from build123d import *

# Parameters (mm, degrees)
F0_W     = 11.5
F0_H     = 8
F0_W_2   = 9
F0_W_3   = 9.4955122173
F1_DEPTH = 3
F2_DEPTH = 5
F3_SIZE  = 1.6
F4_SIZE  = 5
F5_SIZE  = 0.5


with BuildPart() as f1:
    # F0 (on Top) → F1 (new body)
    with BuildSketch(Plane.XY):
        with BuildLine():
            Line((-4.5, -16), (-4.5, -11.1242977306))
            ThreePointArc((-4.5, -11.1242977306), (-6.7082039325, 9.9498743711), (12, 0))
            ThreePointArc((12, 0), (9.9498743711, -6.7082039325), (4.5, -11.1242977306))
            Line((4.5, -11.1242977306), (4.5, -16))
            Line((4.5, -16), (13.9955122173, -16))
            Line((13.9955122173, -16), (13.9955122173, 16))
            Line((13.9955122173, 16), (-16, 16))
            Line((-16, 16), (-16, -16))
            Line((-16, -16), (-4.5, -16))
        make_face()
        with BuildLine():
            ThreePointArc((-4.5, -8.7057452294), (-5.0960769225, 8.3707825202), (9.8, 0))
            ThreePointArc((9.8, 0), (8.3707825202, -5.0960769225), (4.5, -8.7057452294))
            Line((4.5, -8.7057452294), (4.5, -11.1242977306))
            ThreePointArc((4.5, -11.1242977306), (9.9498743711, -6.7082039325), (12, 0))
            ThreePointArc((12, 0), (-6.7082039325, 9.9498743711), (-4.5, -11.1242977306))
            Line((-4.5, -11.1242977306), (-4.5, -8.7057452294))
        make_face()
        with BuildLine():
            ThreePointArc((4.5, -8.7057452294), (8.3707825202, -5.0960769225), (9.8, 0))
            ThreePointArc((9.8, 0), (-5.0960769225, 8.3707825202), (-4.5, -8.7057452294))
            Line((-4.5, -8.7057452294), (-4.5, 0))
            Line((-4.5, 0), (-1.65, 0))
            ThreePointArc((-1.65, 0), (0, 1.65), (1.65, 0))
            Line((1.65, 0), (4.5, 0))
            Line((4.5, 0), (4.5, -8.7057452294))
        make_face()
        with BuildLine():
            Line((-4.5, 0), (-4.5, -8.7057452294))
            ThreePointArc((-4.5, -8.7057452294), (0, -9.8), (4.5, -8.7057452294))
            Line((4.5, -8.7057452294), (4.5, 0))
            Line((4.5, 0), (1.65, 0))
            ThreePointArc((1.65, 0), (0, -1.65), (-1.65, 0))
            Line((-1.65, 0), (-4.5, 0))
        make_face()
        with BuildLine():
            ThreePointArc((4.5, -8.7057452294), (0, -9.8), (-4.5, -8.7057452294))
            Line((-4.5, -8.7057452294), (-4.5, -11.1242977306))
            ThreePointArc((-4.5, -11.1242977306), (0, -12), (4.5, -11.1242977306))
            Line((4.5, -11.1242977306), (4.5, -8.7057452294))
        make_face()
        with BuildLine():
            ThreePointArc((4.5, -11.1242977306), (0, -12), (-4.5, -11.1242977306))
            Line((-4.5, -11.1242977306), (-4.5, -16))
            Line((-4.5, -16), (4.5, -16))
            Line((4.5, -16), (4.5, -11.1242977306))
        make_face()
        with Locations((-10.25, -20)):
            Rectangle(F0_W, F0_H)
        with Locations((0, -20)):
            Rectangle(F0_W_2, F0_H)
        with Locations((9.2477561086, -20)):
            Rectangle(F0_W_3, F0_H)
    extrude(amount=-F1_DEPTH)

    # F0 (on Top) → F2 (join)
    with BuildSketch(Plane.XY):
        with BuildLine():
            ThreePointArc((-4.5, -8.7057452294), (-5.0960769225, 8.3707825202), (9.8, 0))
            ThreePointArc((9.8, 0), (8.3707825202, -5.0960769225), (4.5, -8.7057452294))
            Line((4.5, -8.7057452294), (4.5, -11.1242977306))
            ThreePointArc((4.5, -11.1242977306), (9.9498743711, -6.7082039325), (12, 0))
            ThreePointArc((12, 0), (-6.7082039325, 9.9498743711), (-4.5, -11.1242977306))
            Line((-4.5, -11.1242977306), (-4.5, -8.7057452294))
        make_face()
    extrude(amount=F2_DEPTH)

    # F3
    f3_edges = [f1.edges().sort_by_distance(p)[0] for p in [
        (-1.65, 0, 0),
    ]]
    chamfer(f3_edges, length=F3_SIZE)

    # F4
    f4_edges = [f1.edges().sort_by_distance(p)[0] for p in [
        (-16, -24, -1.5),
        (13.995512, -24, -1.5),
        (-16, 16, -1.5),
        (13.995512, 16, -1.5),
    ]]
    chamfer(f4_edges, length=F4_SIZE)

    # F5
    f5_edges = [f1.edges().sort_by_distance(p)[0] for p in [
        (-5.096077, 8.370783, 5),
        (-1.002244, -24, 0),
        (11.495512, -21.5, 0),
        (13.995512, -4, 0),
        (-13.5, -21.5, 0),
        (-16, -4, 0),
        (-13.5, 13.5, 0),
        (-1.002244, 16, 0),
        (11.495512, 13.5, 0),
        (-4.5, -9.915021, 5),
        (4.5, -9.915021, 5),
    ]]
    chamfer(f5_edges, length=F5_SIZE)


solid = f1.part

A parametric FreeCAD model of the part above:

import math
import FreeCAD as App
import Part
import Sketcher
Q = App.Units.Quantity


def edges_at(feature, points):
    """Names of the edges that pass closest to the given points."""
    edges = feature.Shape.Edges
    near = lambda p: min(range(len(edges)), key=lambda i: edges[i].distToShape(Part.Vertex(*p))[0])
    return sorted({f"Edge{near(p) + 1}" for p in points})


def add_polygon(sketch, points):
    """Adds a closed chain of lines whose ends are joined by coincident constraints."""
    first, n = sketch.GeometryCount, len(points)
    for a, b in zip(points, points[1:] + points[:1]):
        sketch.addGeometry(Part.LineSegment(App.Vector(*a, 0), App.Vector(*b, 0)), False)
    for i in range(n):
        sketch.addConstraint(Sketcher.Constraint("Coincident", first + i, 2, first + (i + 1) % n, 1))

doc = App.newDocument("Part")
body = doc.addObject("PartDesign::Body", "Body")

# Sketch on XY plane
sketch1 = body.newObject("Sketcher::SketchObject", "Sketch")
sketch1.AttachmentSupport = (doc.getObject("XY_Plane"), [""])
sketch1.MapMode = "FlatFace"
add_polygon(sketch1, [(14, -16), (14, 16), (-16, 16), (-16, -24), (14, -24)])  # lines 0-4
sketch1.addGeometry(Part.Circle(App.Vector(0, 0, 0), App.Vector(0, 0, 1), 1.6), False)  # 5
sketch1.addConstraint(Sketcher.Constraint("Vertical", 0))
sketch1.addConstraint(Sketcher.Constraint("Horizontal", 1))
sketch1.addConstraint(Sketcher.Constraint("Vertical", 2))
sketch1.addConstraint(Sketcher.Constraint("Horizontal", 3))
sketch1.addConstraint(Sketcher.Constraint("Vertical", 4))
sketch1.addConstraint(Sketcher.Constraint("Coincident", 5, 3, -1, 1))
sketch1.addConstraint(Sketcher.Constraint("Diameter", 5, Q("3.3 mm")))
sketch1.addConstraint(Sketcher.Constraint("DistanceY", 0, 1, 0, 2, Q("32 mm")))
sketch1.addConstraint(Sketcher.Constraint("DistanceY", 2, 2, 2, 1, Q("40 mm")))
sketch1.addConstraint(Sketcher.Constraint("DistanceY", -1, 1, 0, 2, Q("16 mm")))
sketch1.addConstraint(Sketcher.Constraint("DistanceX", 1, 2, -1, 1, Q("16 mm")))
sketch1.addConstraint(Sketcher.Constraint("DistanceX", 1, 2, 1, 1, Q("29.995512 mm")))
pad1 = body.newObject("PartDesign::Pad", "Pad")
pad1.Profile = sketch1
pad1.Length = 3
pad1.Reversed = True

# Sketch on XY plane
sketch2 = body.newObject("Sketcher::SketchObject", "Sketch001")
sketch2.AttachmentSupport = (doc.getObject("XY_Plane"), [""])
sketch2.MapMode = "FlatFace"
sketch2.addGeometry(Part.ArcOfCircle(Part.Circle(App.Vector(0, 0, 0), App.Vector(0, 0, 1), 9.8), math.radians(0), math.radians(243)), False)
sketch2.addGeometry(Part.ArcOfCircle(Part.Circle(App.Vector(0, 0, 0), App.Vector(0, 0, 1), 9.8), math.radians(-63), math.radians(0)), False)
sketch2.addGeometry(Part.LineSegment(App.Vector(4.5, -8.7, 0), App.Vector(4.5, -11.1, 0)), False)
sketch2.addGeometry(Part.ArcOfCircle(Part.Circle(App.Vector(0, 0, 0), App.Vector(0, 0, 1), 12), math.radians(-68), math.radians(0)), False)
sketch2.addGeometry(Part.ArcOfCircle(Part.Circle(App.Vector(0, 0, 0), App.Vector(0, 0, 1), 12), math.radians(0), math.radians(248)), False)
sketch2.addGeometry(Part.LineSegment(App.Vector(-4.5, -11.1, 0), App.Vector(-4.5, -8.7, 0)), False)
sketch2.addConstraint(Sketcher.Constraint("Tangent", 0, 1, 1, 2))
sketch2.addConstraint(Sketcher.Constraint("Coincident", 1, 1, 2, 1))
sketch2.addConstraint(Sketcher.Constraint("Coincident", 2, 2, 3, 1))
sketch2.addConstraint(Sketcher.Constraint("Tangent", 3, 2, 4, 1))
sketch2.addConstraint(Sketcher.Constraint("Coincident", 4, 2, 5, 1))
sketch2.addConstraint(Sketcher.Constraint("Coincident", 5, 2, 0, 2))
sketch2.addConstraint(Sketcher.Constraint("Vertical", 2))
sketch2.addConstraint(Sketcher.Constraint("Vertical", 5))
sketch2.addConstraint(Sketcher.Constraint("Coincident", 0, 3, -1, 1))
sketch2.addConstraint(Sketcher.Constraint("Coincident", 3, 3, -1, 1))
sketch2.addConstraint(Sketcher.Constraint("Equal", 0, 1))
sketch2.addConstraint(Sketcher.Constraint("Equal", 3, 4))
sketch2.addConstraint(Sketcher.Constraint("PointOnObject", 0, 1, -1))
sketch2.addConstraint(Sketcher.Constraint("PointOnObject", 3, 2, -1))
sketch2.addConstraint(Sketcher.Constraint("Horizontal", 2, 2, 4, 2))
sketch2.addConstraint(Sketcher.Constraint("Radius", 3, Q("12 mm")))
sketch2.addConstraint(Sketcher.Constraint("Radius", 0, Q("9.8 mm")))
sketch2.addConstraint(Sketcher.Constraint("DistanceX", 4, 2, 2, 2, Q("9 mm")))
pad2 = body.newObject("PartDesign::Pad", "Pad001")
pad2.Profile = sketch2
pad2.Length = 5
doc.recompute()

chamfer = body.newObject("PartDesign::Chamfer", "Chamfer")
chamfer.Base = (pad2, edges_at(pad2, [(-1.65, 0, 0)]))
chamfer.Size = 1.6
doc.recompute()

chamfer2 = body.newObject("PartDesign::Chamfer", "Chamfer001")
chamfer2.Base = (chamfer, edges_at(chamfer, [
    (-16, -24, -1.5),
    (13.996, -24, -1.5),
    (-16, 16, -1.5),
    (13.996, 16, -1.5),
]))
chamfer2.Size = 5
doc.recompute()

chamfer3 = body.newObject("PartDesign::Chamfer", "Chamfer002")
chamfer3.Base = (chamfer2, edges_at(chamfer2, [
    (-5.096, 8.371, 5),
    (-1.002, -24, 0),
    (11.496, -21.5, 0),
    (13.996, -2.5, 0),
    (-13.5, -21.5, 0),
    (-16, -4, 0),
    (-13.5, 13.5, 0),
    (-1.002, 16, 0),
    (11.496, 13.5, 0),
    (-4.5, -9.915, 5),
    (4.5, -9.915, 5),
]))
chamfer3.Size = 0.5

doc.recompute()
